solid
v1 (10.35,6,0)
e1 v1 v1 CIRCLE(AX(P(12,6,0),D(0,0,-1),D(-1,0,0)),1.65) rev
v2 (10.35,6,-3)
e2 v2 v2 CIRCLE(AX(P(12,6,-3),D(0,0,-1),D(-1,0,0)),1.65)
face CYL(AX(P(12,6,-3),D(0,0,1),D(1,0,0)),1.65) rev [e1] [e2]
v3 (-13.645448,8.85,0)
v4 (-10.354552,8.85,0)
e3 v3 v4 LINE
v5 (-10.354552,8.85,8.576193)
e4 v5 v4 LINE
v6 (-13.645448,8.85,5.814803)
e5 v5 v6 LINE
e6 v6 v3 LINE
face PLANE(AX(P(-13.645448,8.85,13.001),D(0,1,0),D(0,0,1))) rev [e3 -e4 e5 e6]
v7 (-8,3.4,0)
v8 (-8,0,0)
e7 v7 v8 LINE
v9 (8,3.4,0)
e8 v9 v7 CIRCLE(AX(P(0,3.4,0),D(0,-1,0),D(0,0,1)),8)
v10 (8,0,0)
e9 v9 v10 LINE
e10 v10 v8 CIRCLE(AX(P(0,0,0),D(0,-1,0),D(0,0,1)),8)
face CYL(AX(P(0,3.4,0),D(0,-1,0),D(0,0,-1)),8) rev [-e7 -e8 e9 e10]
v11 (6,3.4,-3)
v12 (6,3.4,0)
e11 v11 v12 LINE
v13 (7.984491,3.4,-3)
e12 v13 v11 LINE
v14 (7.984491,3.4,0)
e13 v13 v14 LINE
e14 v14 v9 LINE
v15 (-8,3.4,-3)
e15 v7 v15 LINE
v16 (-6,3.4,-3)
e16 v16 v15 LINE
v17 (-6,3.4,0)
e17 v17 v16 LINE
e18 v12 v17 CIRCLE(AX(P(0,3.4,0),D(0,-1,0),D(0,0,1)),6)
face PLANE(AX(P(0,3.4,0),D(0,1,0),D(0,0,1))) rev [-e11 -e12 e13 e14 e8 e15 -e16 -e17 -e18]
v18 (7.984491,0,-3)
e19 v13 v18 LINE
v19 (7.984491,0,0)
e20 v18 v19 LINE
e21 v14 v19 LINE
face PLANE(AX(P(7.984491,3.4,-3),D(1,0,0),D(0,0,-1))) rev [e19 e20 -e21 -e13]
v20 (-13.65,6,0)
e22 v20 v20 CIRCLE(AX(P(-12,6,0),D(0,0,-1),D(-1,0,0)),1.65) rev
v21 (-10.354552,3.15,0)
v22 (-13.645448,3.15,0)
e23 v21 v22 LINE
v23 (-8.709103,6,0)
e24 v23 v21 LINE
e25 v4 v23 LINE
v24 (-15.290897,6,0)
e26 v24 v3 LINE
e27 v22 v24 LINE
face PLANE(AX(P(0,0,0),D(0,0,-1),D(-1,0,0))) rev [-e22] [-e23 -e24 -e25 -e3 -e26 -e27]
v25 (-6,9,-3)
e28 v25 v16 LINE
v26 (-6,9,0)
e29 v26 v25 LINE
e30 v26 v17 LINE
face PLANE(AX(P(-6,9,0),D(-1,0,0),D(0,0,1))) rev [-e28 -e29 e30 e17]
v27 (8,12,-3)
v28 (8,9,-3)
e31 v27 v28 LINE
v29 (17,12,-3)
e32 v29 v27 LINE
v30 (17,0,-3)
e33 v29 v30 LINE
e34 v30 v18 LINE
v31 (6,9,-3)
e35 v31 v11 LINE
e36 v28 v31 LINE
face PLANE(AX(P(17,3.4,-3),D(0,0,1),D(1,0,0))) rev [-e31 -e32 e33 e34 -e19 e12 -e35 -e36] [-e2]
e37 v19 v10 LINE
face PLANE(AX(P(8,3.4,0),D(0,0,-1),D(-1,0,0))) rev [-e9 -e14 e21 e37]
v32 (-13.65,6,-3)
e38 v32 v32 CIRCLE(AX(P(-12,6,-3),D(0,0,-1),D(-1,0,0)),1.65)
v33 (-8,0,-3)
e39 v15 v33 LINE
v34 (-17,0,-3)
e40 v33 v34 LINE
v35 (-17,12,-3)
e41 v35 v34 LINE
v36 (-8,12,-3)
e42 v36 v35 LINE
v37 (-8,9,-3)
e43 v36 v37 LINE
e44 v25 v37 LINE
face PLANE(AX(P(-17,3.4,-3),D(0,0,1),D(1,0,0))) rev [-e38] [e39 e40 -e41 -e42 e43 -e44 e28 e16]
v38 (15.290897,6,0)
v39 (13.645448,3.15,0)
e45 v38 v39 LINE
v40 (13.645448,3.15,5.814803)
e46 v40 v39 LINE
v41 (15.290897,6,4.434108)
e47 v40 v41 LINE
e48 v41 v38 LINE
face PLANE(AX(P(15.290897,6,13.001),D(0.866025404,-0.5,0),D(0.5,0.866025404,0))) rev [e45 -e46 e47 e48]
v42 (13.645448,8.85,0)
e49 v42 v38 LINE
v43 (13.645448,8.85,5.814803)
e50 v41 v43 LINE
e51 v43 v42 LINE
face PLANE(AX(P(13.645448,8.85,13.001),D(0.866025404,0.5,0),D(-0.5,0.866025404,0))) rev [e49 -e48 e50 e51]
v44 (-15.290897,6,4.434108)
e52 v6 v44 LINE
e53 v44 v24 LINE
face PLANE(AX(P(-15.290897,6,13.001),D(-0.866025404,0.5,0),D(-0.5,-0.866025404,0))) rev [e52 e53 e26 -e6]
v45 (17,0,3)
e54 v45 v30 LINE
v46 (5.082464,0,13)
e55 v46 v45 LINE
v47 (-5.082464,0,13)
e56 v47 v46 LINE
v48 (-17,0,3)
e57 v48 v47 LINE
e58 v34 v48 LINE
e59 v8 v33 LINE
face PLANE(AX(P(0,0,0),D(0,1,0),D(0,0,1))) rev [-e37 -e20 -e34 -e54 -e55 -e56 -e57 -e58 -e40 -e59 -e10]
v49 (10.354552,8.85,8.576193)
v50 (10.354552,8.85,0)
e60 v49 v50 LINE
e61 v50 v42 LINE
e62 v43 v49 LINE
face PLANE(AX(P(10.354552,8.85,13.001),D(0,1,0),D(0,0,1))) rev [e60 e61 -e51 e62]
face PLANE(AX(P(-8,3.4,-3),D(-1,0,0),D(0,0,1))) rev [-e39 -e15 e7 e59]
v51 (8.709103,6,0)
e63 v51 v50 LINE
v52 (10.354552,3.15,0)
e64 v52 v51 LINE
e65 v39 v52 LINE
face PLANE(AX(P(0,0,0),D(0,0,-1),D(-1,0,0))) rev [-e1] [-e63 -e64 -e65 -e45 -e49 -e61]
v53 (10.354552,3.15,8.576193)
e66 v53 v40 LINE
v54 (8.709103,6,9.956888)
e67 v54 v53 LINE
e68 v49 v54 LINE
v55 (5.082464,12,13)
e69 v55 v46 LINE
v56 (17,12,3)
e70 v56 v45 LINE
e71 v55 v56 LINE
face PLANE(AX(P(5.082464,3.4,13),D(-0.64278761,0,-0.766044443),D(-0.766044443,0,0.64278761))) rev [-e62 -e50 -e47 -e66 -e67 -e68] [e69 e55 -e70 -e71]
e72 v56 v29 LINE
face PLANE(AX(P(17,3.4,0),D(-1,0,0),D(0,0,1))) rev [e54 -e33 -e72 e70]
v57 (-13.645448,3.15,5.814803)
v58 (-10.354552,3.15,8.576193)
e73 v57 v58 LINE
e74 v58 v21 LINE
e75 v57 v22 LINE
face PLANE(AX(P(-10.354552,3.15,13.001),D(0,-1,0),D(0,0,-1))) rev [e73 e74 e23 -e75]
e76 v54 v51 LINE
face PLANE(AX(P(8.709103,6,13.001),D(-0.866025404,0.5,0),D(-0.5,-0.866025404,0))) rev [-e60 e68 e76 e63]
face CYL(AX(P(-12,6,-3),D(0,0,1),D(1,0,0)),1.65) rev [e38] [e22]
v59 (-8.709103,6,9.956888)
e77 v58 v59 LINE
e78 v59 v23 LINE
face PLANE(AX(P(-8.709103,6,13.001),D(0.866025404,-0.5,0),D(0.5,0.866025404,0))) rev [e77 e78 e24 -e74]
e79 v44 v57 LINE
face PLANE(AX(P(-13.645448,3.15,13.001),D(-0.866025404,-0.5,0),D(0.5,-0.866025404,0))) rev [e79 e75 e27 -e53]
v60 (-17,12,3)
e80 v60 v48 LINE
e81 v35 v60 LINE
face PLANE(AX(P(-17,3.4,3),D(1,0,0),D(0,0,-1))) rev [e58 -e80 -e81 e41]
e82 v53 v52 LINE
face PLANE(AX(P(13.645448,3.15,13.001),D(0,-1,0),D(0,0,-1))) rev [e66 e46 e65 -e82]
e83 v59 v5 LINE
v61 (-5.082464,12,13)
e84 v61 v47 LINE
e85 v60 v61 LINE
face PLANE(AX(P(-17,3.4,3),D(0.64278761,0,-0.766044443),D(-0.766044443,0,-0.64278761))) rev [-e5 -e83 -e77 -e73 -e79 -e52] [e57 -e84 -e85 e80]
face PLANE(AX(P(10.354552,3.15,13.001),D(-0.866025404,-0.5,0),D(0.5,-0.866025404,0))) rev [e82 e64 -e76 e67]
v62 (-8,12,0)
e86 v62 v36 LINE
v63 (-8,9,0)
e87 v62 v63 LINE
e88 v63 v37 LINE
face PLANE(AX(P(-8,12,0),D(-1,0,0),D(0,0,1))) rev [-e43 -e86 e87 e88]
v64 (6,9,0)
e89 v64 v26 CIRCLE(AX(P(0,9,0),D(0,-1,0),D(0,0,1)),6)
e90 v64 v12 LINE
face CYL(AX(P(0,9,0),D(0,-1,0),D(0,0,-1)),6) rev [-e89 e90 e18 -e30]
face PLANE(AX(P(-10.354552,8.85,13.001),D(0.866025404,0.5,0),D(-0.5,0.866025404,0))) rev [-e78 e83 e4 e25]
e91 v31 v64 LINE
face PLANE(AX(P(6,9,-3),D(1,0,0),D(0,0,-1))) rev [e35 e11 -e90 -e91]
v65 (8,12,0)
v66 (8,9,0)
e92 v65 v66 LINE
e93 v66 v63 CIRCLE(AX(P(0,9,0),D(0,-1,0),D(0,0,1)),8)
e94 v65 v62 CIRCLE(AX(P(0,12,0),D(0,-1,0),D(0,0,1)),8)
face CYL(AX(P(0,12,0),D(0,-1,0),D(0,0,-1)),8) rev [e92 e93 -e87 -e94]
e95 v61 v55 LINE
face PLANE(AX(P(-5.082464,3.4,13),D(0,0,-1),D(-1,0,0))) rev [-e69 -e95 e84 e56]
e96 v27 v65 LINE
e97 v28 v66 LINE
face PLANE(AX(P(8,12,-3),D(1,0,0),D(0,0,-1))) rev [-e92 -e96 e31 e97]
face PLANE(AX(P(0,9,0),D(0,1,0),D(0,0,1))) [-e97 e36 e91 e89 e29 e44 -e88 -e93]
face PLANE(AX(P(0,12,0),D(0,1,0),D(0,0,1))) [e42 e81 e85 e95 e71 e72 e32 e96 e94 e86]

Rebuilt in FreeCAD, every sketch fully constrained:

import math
import FreeCAD as App
import Part
import Sketcher

V = App.Vector
Q = App.Units.Quantity

doc = App.newDocument("Part")
body = doc.addObject("PartDesign::Body", "Body")

sketch1 = doc.addObject("Sketcher::SketchObject", "Sketch")
body.addObject(sketch1)
sketch1.AttachmentSupport = (doc.XZ_Plane, [""])
sketch1.MapMode = "FlatFace"
sketch1.addGeometry(Part.LineSegment(V(-17, 3, 0), V(-5.082464, 13, 0)), False)
sketch1.addGeometry(Part.LineSegment(V(-5.082464, 13, 0), V(5.082464, 13, 0)), False)
sketch1.addGeometry(Part.LineSegment(V(5.082464, 13, 0), V(17, 3, 0)), False)
sketch1.addGeometry(Part.LineSegment(V(17, 3, 0), V(17, -3, 0)), False)
sketch1.addGeometry(Part.LineSegment(V(17, -3, 0), V(7.984491, -3, 0)), False)
sketch1.addGeometry(Part.LineSegment(V(7.984491, -3, 0), V(7.984491, 0, 0)), False)
sketch1.addGeometry(Part.LineSegment(V(7.984491, 0, 0), V(8, 0, 0)), False)
sketch1.addGeometry(Part.ArcOfCircle(Part.Circle(V(0, 0, 0), V(0, 0, 1), 8), math.radians(0), math.radians(180)), False)
sketch1.addGeometry(Part.LineSegment(V(-8, 0, 0), V(-8, -3, 0)), False)
sketch1.addGeometry(Part.LineSegment(V(-8, -3, 0), V(-17, -3, 0)), False)
sketch1.addGeometry(Part.LineSegment(V(-17, -3, 0), V(-17, 3, 0)), False)
sketch1.addConstraint(Sketcher.Constraint("Coincident", 0, 2, 1, 1))
sketch1.addConstraint(Sketcher.Constraint("Coincident", 1, 2, 2, 1))
sketch1.addConstraint(Sketcher.Constraint("Coincident", 2, 2, 3, 1))
sketch1.addConstraint(Sketcher.Constraint("Coincident", 3, 2, 4, 1))
sketch1.addConstraint(Sketcher.Constraint("Coincident", 4, 2, 5, 1))
sketch1.addConstraint(Sketcher.Constraint("Coincident", 5, 2, 6, 1))
sketch1.addConstraint(Sketcher.Constraint("Coincident", 6, 2, 7, 1))
sketch1.addConstraint(Sketcher.Constraint("Tangent", 7, 2, 8, 1))
sketch1.addConstraint(Sketcher.Constraint("Coincident", 8, 2, 9, 1))
sketch1.addConstraint(Sketcher.Constraint("Coincident", 9, 2, 10, 1))
sketch1.addConstraint(Sketcher.Constraint("Coincident", 10, 2, 0, 1))
sketch1.addConstraint(Sketcher.Constraint("Horizontal", 1))
sketch1.addConstraint(Sketcher.Constraint("Vertical", 3))
sketch1.addConstraint(Sketcher.Constraint("Horizontal", 4))
sketch1.addConstraint(Sketcher.Constraint("Vertical", 5))
sketch1.addConstraint(Sketcher.Constraint("Horizontal", 6))
sketch1.addConstraint(Sketcher.Constraint("Vertical", 8))
sketch1.addConstraint(Sketcher.Constraint("Horizontal", 9))
sketch1.addConstraint(Sketcher.Constraint("Vertical", 10))
sketch1.addConstraint(Sketcher.Constraint("Coincident", 7, 3, -1, 1))
sketch1.addConstraint(Sketcher.Constraint("Symmetric", 2, 2, 9, 2, -1, 1))
sketch1.addConstraint(Sketcher.Constraint("PointOnObject", 5, 2, -1))
sketch1.addConstraint(Sketcher.Constraint("Horizontal", 4, 2, 8, 2))
sketch1.addConstraint(Sketcher.Constraint("Horizontal", 2, 2, 10, 2))
sketch1.addConstraint(Sketcher.Constraint("Equal", 0, 2))
sketch1.addConstraint(Sketcher.Constraint("Radius", 7, Q("8 mm")))
sketch1.addConstraint(Sketcher.Constraint("DistanceX", 9, 2, 9, 1, Q("9 mm")))
sketch1.addConstraint(Sketcher.Constraint("DistanceY", 3, 2, 3, 1, Q("6 mm")))
sketch1.addConstraint(Sketcher.Constraint("Angle", 0, Q("40 deg")))
sketch1.addConstraint(Sketcher.Constraint("DistanceY", -1, 1, 0, 2, Q("13 mm")))
sketch1.addConstraint(Sketcher.Constraint("DistanceX", 4, 2, 4, 1, Q("9.015509 mm")))
pad1 = doc.addObject("PartDesign::Pad", "Pad")
body.addObject(pad1)
pad1.Profile = sketch1
pad1.Length = 3.4
pad1.Reversed = True

sketch2 = doc.addObject("Sketcher::SketchObject", "Sketch001")
body.addObject(sketch2)
sketch2.AttachmentSupport = (doc.XZ_Plane, [""])
sketch2.MapMode = "FlatFace"
sketch2.AttachmentOffset = App.Placement(V(0, 0, -3.4), App.Rotation())
sketch2.addGeometry(Part.LineSegment(V(-17, 3, 0), V(-5.082464, 13, 0)), False)
sketch2.addGeometry(Part.LineSegment(V(-5.082464, 13, 0), V(5.082464, 13, 0)), False)
sketch2.addGeometry(Part.LineSegment(V(5.082464, 13, 0), V(17, 3, 0)), False)
sketch2.addGeometry(Part.LineSegment(V(17, 3, 0), V(17, -3, 0)), False)
sketch2.addGeometry(Part.LineSegment(V(17, -3, 0), V(6, -3, 0)), False)
sketch2.addGeometry(Part.LineSegment(V(6, -3, 0), V(6, 0, 0)), False)
sketch2.addGeometry(Part.ArcOfCircle(Part.Circle(V(0, 0, 0), V(0, 0, 1), 6), math.radians(0), math.radians(180)), False)
sketch2.addGeometry(Part.LineSegment(V(-6, 0, 0), V(-6, -3, 0)), False)
sketch2.addGeometry(Part.LineSegment(V(-6, -3, 0), V(-17, -3, 0)), False)
sketch2.addGeometry(Part.LineSegment(V(-17, -3, 0), V(-17, 3, 0)), False)
sketch2.addConstraint(Sketcher.Constraint("Coincident", 0, 2, 1, 1))
sketch2.addConstraint(Sketcher.Constraint("Coincident", 1, 2, 2, 1))
sketch2.addConstraint(Sketcher.Constraint("Coincident", 2, 2, 3, 1))
sketch2.addConstraint(Sketcher.Constraint("Coincident", 3, 2, 4, 1))
sketch2.addConstraint(Sketcher.Constraint("Coincident", 4, 2, 5, 1))
sketch2.addConstraint(Sketcher.Constraint("Tangent", 5, 2, 6, 1))
sketch2.addConstraint(Sketcher.Constraint("Tangent", 6, 2, 7, 1))
sketch2.addConstraint(Sketcher.Constraint("Coincident", 7, 2, 8, 1))
sketch2.addConstraint(Sketcher.Constraint("Coincident", 8, 2, 9, 1))
sketch2.addConstraint(Sketcher.Constraint("Coincident", 9, 2, 0, 1))
sketch2.addConstraint(Sketcher.Constraint("Horizontal", 1))
sketch2.addConstraint(Sketcher.Constraint("Vertical", 3))
sketch2.addConstraint(Sketcher.Constraint("Horizontal", 4))
sketch2.addConstraint(Sketcher.Constraint("Vertical", 5))
sketch2.addConstraint(Sketcher.Constraint("Vertical", 7))
sketch2.addConstraint(Sketcher.Constraint("Horizontal", 8))
sketch2.addConstraint(Sketcher.Constraint("Vertical", 9))
sketch2.addConstraint(Sketcher.Constraint("Coincident", 6, 3, -1, 1))
sketch2.addConstraint(Sketcher.Constraint("Symmetric", 2, 2, 8, 2, -1, 1))
sketch2.addConstraint(Sketcher.Constraint("Horizontal", 4, 2, 7, 2))
sketch2.addConstraint(Sketcher.Constraint("Horizontal", 2, 2, 9, 2))
sketch2.addConstraint(Sketcher.Constraint("Equal", 0, 2))
sketch2.addConstraint(Sketcher.Constraint("Radius", 6, Q("6 mm")))
sketch2.addConstraint(Sketcher.Constraint("DistanceX", 4, 2, 4, 1, Q("11 mm")))
sketch2.addConstraint(Sketcher.Constraint("DistanceY", 3, 2, 3, 1, Q("6 mm")))
sketch2.addConstraint(Sketcher.Constraint("Angle", 0, Q("40 deg")))
sketch2.addConstraint(Sketcher.Constraint("DistanceY", -1, 1, 0, 2, Q("13 mm")))
pad2 = doc.addObject("PartDesign::Pad", "Pad001")
body.addObject(pad2)
pad2.Profile = sketch2
pad2.Length = 5.6
pad2.Reversed = True

sketch3 = doc.addObject("Sketcher::SketchObject", "Sketch002")
body.addObject(sketch3)
sketch3.AttachmentSupport = (doc.XZ_Plane, [""])
sketch3.MapMode = "FlatFace"
sketch3.AttachmentOffset = App.Placement(V(0, 0, -9), App.Rotation())
sketch3.addGeometry(Part.LineSegment(V(-17, 3, 0), V(-5.082464, 13, 0)), False)
sketch3.addGeometry(Part.LineSegment(V(-5.082464, 13, 0), V(5.082464, 13, 0)), False)
sketch3.addGeometry(Part.LineSegment(V(5.082464, 13, 0), V(17, 3, 0)), False)
sketch3.addGeometry(Part.LineSegment(V(17, 3, 0), V(17, -3, 0)), False)
sketch3.addGeometry(Part.LineSegment(V(17, -3, 0), V(8, -3, 0)), False)
sketch3.addGeometry(Part.LineSegment(V(8, -3, 0), V(8, 0, 0)), False)
sketch3.addGeometry(Part.ArcOfCircle(Part.Circle(V(0, 0, 0), V(0, 0, 1), 8), math.radians(0), math.radians(180)), False)
sketch3.addGeometry(Part.LineSegment(V(-8, 0, 0), V(-8, -3, 0)), False)
sketch3.addGeometry(Part.LineSegment(V(-8, -3, 0), V(-17, -3, 0)), False)
sketch3.addGeometry(Part.LineSegment(V(-17, -3, 0), V(-17, 3, 0)), False)
sketch3.addConstraint(Sketcher.Constraint("Coincident", 0, 2, 1, 1))
sketch3.addConstraint(Sketcher.Constraint("Coincident", 1, 2, 2, 1))
sketch3.addConstraint(Sketcher.Constraint("Coincident", 2, 2, 3, 1))
sketch3.addConstraint(Sketcher.Constraint("Coincident", 3, 2, 4, 1))
sketch3.addConstraint(Sketcher.Constraint("Coincident", 4, 2, 5, 1))
sketch3.addConstraint(Sketcher.Constraint("Tangent", 5, 2, 6, 1))
sketch3.addConstraint(Sketcher.Constraint("Tangent", 6, 2, 7, 1))
sketch3.addConstraint(Sketcher.Constraint("Coincident", 7, 2, 8, 1))
sketch3.addConstraint(Sketcher.Constraint("Coincident", 8, 2, 9, 1))
sketch3.addConstraint(Sketcher.Constraint("Coincident", 9, 2, 0, 1))
sketch3.addConstraint(Sketcher.Constraint("Horizontal", 1))
sketch3.addConstraint(Sketcher.Constraint("Vertical", 3))
sketch3.addConstraint(Sketcher.Constraint("Horizontal", 4))
sketch3.addConstraint(Sketcher.Constraint("Vertical", 5))
sketch3.addConstraint(Sketcher.Constraint("Vertical", 7))
sketch3.addConstraint(Sketcher.Constraint("Horizontal", 8))
sketch3.addConstraint(Sketcher.Constraint("Vertical", 9))
sketch3.addConstraint(Sketcher.Constraint("Coincident", 6, 3, -1, 1))
sketch3.addConstraint(Sketcher.Constraint("Symmetric", 2, 2, 8, 2, -1, 1))
sketch3.addConstraint(Sketcher.Constraint("Horizontal", 4, 2, 7, 2))
sketch3.addConstraint(Sketcher.Constraint("Horizontal", 2, 2, 9, 2))
sketch3.addConstraint(Sketcher.Constraint("Equal", 0, 2))
sketch3.addConstraint(Sketcher.Constraint("Radius", 6, Q("8 mm")))
sketch3.addConstraint(Sketcher.Constraint("DistanceX", 4, 2, 4, 1, Q("9 mm")))
sketch3.addConstraint(Sketcher.Constraint("DistanceY", 3, 2, 3, 1, Q("6 mm")))
sketch3.addConstraint(Sketcher.Constraint("Angle", 0, Q("40 deg")))
sketch3.addConstraint(Sketcher.Constraint("DistanceY", -1, 1, 0, 2, Q("13 mm")))
pad3 = doc.addObject("PartDesign::Pad", "Pad002")
body.addObject(pad3)
pad3.Profile = sketch3
pad3.Length = 3
pad3.Reversed = True

sketch4 = doc.addObject("Sketcher::SketchObject", "Sketch003")
body.addObject(sketch4)
sketch4.AttachmentSupport = (doc.XY_Plane, [""])
sketch4.MapMode = "FlatFace"
sketch4.addGeometry(Part.Circle(V(-12, 6, 0), V(0, 0, 1), 1.65), False)
sketch4.addGeometry(Part.Circle(V(12, 6, 0), V(0, 0, 1), 1.65), False)
sketch4.addConstraint(Sketcher.Constraint("Equal", 0, 1))
sketch4.addConstraint(Sketcher.Constraint("Symmetric", 0, 3, 1, 3, -2))
sketch4.addConstraint(Sketcher.Constraint("Diameter", 0, Q("3.3 mm")))
sketch4.addConstraint(Sketcher.Constraint("DistanceX", 0, 3, -1, 1, Q("12 mm")))
sketch4.addConstraint(Sketcher.Constraint("DistanceY", -1, 1, 0, 3, Q("6 mm")))
pocket1 = doc.addObject("PartDesign::Pocket", "Pocket")
body.addObject(pocket1)
pocket1.Profile = sketch4
pocket1.Type = "ThroughAll"
pocket1.Midplane = True

sketch5 = doc.addObject("Sketcher::SketchObject", "Sketch004")
body.addObject(sketch5)
sketch5.AttachmentSupport = (doc.XY_Plane, [""])
sketch5.MapMode = "FlatFace"
sketch5.addGeometry(Part.LineSegment(V(-10.354552, 3.15, 0), V(-13.645448, 3.15, 0)), False)
sketch5.addGeometry(Part.LineSegment(V(-13.645448, 3.15, 0), V(-15.290897, 6, 0)), False)
sketch5.addGeometry(Part.LineSegment(V(-15.290897, 6, 0), V(-13.645448, 8.85, 0)), False)
sketch5.addGeometry(Part.LineSegment(V(-13.645448, 8.85, 0), V(-10.354552, 8.85, 0)), False)
sketch5.addGeometry(Part.LineSegment(V(-10.354552, 8.85, 0), V(-8.709103, 6, 0)), False)
sketch5.addGeometry(Part.LineSegment(V(-8.709103, 6, 0), V(-10.354552, 3.15, 0)), False)
sketch5.addConstraint(Sketcher.Constraint("Coincident", 0, 2, 1, 1))
sketch5.addConstraint(Sketcher.Constraint("Coincident", 1, 2, 2, 1))
sketch5.addConstraint(Sketcher.Constraint("Coincident", 2, 2, 3, 1))
sketch5.addConstraint(Sketcher.Constraint("Coincident", 3, 2, 4, 1))
sketch5.addConstraint(Sketcher.Constraint("Coincident", 4, 2, 5, 1))
sketch5.addConstraint(Sketcher.Constraint("Coincident", 5, 2, 0, 1))
sketch5.addConstraint(Sketcher.Constraint("Horizontal", 0))
sketch5.addConstraint(Sketcher.Constraint("Horizontal", 3))
sketch5.addConstraint(Sketcher.Constraint("Parallel", 1, 4))
sketch5.addConstraint(Sketcher.Constraint("Parallel", 2, 5))
sketch5.addConstraint(Sketcher.Constraint("Horizontal", 1, 2, 4, 2))
sketch5.addConstraint(Sketcher.Constraint("Vertical", 0, 2, 2, 2))
sketch5.addConstraint(Sketcher.Constraint("Vertical", 3, 2, 5, 2))
sketch5.addConstraint(Sketcher.Constraint("Angle", 1, Q("120 deg")))
sketch5.addConstraint(Sketcher.Constraint("DistanceY", -1, 1, 1, 2, Q("6 mm")))
sketch5.addConstraint(Sketcher.Constraint("DistanceY", 0, 2, 2, 2, Q("5.7 mm")))
sketch5.addConstraint(Sketcher.Constraint("DistanceX", 0, 2, 0, 1, Q("3.290897 mm")))
sketch5.addConstraint(Sketcher.Constraint("DistanceX", 0, 2, -1, 1, Q("13.645448 mm")))
pocket2 = doc.addObject("PartDesign::Pocket", "Pocket001")
body.addObject(pocket2)
pocket2.Profile = sketch5
pocket2.Length = 9.956888
pocket2.Reversed = True

sketch6 = doc.addObject("Sketcher::SketchObject", "Sketch005")
body.addObject(sketch6)
sketch6.AttachmentSupport = (doc.XY_Plane, [""])
sketch6.MapMode = "FlatFace"
sketch6.addGeometry(Part.LineSegment(V(13.645448, 3.15, 0), V(10.354552, 3.15, 0)), False)
sketch6.addGeometry(Part.LineSegment(V(10.354552, 3.15, 0), V(8.709103, 6, 0)), False)
sketch6.addGeometry(Part.LineSegment(V(8.709103, 6, 0), V(10.354552, 8.85, 0)), False)
sketch6.addGeometry(Part.LineSegment(V(10.354552, 8.85, 0), V(13.645448, 8.85, 0)), False)
sketch6.addGeometry(Part.LineSegment(V(13.645448, 8.85, 0), V(15.290897, 6, 0)), False)
sketch6.addGeometry(Part.LineSegment(V(15.290897, 6, 0), V(13.645448, 3.15, 0)), False)
sketch6.addConstraint(Sketcher.Constraint("Coincident", 0, 2, 1, 1))
sketch6.addConstraint(Sketcher.Constraint("Coincident", 1, 2, 2, 1))
sketch6.addConstraint(Sketcher.Constraint("Coincident", 2, 2, 3, 1))
sketch6.addConstraint(Sketcher.Constraint("Coincident", 3, 2, 4, 1))
sketch6.addConstraint(Sketcher.Constraint("Coincident", 4, 2, 5, 1))
sketch6.addConstraint(Sketcher.Constraint("Coincident", 5, 2, 0, 1))
sketch6.addConstraint(Sketcher.Constraint("Horizontal", 0))
sketch6.addConstraint(Sketcher.Constraint("Horizontal", 3))
sketch6.addConstraint(Sketcher.Constraint("Parallel", 1, 4))
sketch6.addConstraint(Sketcher.Constraint("Parallel", 2, 5))
sketch6.addConstraint(Sketcher.Constraint("Horizontal", 1, 2, 4, 2))
sketch6.addConstraint(Sketcher.Constraint("Vertical", 0, 2, 2, 2))
sketch6.addConstraint(Sketcher.Constraint("Vertical", 3, 2, 5, 2))
sketch6.addConstraint(Sketcher.Constraint("Angle", 1, Q("120 deg")))
sketch6.addConstraint(Sketcher.Constraint("DistanceY", -1, 1, 1, 2, Q("6 mm")))
sketch6.addConstraint(Sketcher.Constraint("DistanceY", 0, 2, 2, 2, Q("5.7 mm")))
sketch6.addConstraint(Sketcher.Constraint("DistanceX", 0, 2, 0, 1, Q("3.290897 mm")))
sketch6.addConstraint(Sketcher.Constraint("DistanceX", -1, 1, 0, 2, Q("10.354552 mm")))
pocket3 = doc.addObject("PartDesign::Pocket", "Pocket002")
body.addObject(pocket3)
pocket3.Profile = sketch6
pocket3.Length = 9.956888
pocket3.Reversed = True

doc.recompute()
